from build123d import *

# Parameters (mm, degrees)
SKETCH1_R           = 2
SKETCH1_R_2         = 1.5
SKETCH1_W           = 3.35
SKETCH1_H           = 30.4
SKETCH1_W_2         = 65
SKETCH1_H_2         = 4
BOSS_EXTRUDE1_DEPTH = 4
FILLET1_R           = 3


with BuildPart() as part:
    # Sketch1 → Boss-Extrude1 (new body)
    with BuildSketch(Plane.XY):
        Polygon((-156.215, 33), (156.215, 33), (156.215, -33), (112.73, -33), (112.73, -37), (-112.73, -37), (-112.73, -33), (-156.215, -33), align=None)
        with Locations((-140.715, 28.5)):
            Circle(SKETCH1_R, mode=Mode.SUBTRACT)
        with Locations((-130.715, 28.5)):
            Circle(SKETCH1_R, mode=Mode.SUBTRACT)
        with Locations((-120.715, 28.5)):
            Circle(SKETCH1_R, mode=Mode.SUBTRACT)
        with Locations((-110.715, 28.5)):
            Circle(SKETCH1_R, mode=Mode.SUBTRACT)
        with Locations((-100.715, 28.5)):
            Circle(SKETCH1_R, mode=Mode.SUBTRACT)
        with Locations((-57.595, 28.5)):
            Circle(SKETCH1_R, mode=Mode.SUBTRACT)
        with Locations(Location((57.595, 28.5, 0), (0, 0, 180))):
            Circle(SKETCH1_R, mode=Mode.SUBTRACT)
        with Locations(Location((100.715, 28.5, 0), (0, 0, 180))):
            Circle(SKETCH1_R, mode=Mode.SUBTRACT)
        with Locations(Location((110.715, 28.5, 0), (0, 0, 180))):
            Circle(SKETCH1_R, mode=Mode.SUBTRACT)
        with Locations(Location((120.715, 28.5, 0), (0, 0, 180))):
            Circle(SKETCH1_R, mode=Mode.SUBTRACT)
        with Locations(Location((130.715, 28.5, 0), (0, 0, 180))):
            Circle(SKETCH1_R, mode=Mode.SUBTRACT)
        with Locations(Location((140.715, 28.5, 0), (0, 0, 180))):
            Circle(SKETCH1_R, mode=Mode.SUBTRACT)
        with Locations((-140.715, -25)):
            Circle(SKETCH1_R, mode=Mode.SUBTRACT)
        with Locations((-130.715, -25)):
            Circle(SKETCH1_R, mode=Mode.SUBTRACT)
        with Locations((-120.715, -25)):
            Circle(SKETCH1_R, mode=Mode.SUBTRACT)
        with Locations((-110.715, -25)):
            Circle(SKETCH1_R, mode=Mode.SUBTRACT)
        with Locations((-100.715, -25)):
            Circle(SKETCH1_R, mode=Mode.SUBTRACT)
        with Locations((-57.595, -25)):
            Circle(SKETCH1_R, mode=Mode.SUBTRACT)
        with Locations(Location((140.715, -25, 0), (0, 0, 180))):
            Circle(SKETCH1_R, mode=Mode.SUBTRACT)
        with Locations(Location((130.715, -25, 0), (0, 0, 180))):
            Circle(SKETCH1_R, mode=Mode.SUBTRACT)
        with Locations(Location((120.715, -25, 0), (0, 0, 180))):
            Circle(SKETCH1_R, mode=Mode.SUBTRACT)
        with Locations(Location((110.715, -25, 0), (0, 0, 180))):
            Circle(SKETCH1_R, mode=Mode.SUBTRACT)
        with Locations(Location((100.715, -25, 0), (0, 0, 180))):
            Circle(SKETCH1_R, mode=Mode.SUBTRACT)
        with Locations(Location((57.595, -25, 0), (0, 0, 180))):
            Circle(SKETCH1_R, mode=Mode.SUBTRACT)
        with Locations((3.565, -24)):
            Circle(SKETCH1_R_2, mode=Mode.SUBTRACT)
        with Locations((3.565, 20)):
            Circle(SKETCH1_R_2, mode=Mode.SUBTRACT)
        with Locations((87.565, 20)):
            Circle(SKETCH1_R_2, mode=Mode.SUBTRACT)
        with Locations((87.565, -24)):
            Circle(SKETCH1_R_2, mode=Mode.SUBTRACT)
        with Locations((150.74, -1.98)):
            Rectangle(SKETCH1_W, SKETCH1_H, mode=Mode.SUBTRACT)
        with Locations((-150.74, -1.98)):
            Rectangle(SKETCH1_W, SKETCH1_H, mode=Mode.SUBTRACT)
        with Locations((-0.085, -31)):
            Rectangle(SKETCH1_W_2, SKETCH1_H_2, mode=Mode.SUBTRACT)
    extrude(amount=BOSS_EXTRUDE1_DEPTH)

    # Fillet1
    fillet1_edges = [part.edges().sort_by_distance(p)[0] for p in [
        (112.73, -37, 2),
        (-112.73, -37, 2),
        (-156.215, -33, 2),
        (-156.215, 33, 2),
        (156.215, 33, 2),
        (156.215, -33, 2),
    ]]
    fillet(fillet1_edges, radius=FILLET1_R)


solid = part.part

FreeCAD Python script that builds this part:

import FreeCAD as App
import Part
import Sketcher


def edges_at(feature, points):
    """Names of the edges that pass closest to the given points."""
    edges = feature.Shape.Edges
    near = lambda p: min(range(len(edges)), key=lambda i: edges[i].distToShape(Part.Vertex(*p))[0])
    return sorted({f"Edge{near(p) + 1}" for p in points})

doc = App.newDocument("Part")
body = doc.addObject("PartDesign::Body", "Body")

# Sketch on XY plane
sketch1 = body.newObject("Sketcher::SketchObject", "Sketch")
sketch1.AttachmentSupport = (doc.getObject("XY_Plane"), [""])
sketch1.MapMode = "FlatFace"
sketch1.addGeometry([
    Part.LineSegment(App.Vector(156.2, 33, 0), App.Vector(-156.2, 33, 0)),  # 0
    Part.LineSegment(App.Vector(-156.2, 33, 0), App.Vector(-156.2, -33, 0)),  # 1
    Part.LineSegment(App.Vector(-156.2, -33, 0), App.Vector(-112.7, -33, 0)),  # 2
    Part.LineSegment(App.Vector(-112.7, -33, 0), App.Vector(-112.7, -37, 0)),  # 3
    Part.LineSegment(App.Vector(-112.7, -37, 0), App.Vector(112.7, -37, 0)),  # 4
    Part.LineSegment(App.Vector(112.7, -37, 0), App.Vector(112.7, -33, 0)),  # 5
    Part.LineSegment(App.Vector(112.7, -33, 0), App.Vector(156.2, -33, 0)),  # 6
    Part.LineSegment(App.Vector(156.2, -33, 0), App.Vector(156.2, 33, 0)),  # 7
    Part.Circle(App.Vector(140.7, -25, 0), App.Vector(0, 0, 1), 2),  # 8
    Part.Circle(App.Vector(130.7, -25, 0), App.Vector(0, 0, 1), 2),  # 9
    Part.Circle(App.Vector(120.7, -25, 0), App.Vector(0, 0, 1), 2),  # 10
    Part.Circle(App.Vector(110.7, -25, 0), App.Vector(0, 0, 1), 2),  # 11
    Part.Circle(App.Vector(100.7, -25, 0), App.Vector(0, 0, 1), 2),  # 12
    Part.Circle(App.Vector(87.6, -24, 0), App.Vector(0, 0, 1), 1.5),  # 13
    Part.Circle(App.Vector(57.6, -25, 0), App.Vector(0, 0, 1), 2),  # 14
    Part.Circle(App.Vector(3.6, -24, 0), App.Vector(0, 0, 1), 1.5),  # 15
    Part.LineSegment(App.Vector(149.1, -17.2, 0), App.Vector(149.1, 13.2, 0)),  # 16
    Part.LineSegment(App.Vector(149.1, 13.2, 0), App.Vector(152.4, 13.2, 0)),  # 17
    Part.LineSegment(App.Vector(152.4, 13.2, 0), App.Vector(152.4, -17.2, 0)),  # 18
    Part.LineSegment(App.Vector(152.4, -17.2, 0), App.Vector(149.1, -17.2, 0)),  # 19
    Part.LineSegment(App.Vector(-32.6, -33, 0), App.Vector(-32.6, -29, 0)),  # 20
    Part.LineSegment(App.Vector(-32.6, -29, 0), App.Vector(32.4, -29, 0)),  # 21
    Part.LineSegment(App.Vector(32.4, -29, 0), App.Vector(32.4, -33, 0)),  # 22
    Part.LineSegment(App.Vector(32.4, -33, 0), App.Vector(-32.6, -33, 0)),  # 23
    Part.Circle(App.Vector(-57.6, -25, 0), App.Vector(0, 0, 1), 2),  # 24
    Part.Circle(App.Vector(-100.7, -25, 0), App.Vector(0, 0, 1), 2),  # 25
    Part.Circle(App.Vector(-110.7, -25, 0), App.Vector(0, 0, 1), 2),  # 26
    Part.Circle(App.Vector(-120.7, -25, 0), App.Vector(0, 0, 1), 2),  # 27
    Part.Circle(App.Vector(-130.7, -25, 0), App.Vector(0, 0, 1), 2),  # 28
    Part.Circle(App.Vector(-140.7, -25, 0), App.Vector(0, 0, 1), 2),  # 29
    Part.LineSegment(App.Vector(-152.4, -17.2, 0), App.Vector(-152.4, 13.2, 0)),  # 30
    Part.LineSegment(App.Vector(-152.4, 13.2, 0), App.Vector(-149.1, 13.2, 0)),  # 31
    Part.LineSegment(App.Vector(-149.1, 13.2, 0), App.Vector(-149.1, -17.2, 0)),  # 32
    Part.LineSegment(App.Vector(-149.1, -17.2, 0), App.Vector(-152.4, -17.2, 0)),  # 33
    Part.Circle(App.Vector(87.6, 20, 0), App.Vector(0, 0, 1), 1.5),  # 34
    Part.Circle(App.Vector(140.7, 28.5, 0), App.Vector(0, 0, 1), 2),  # 35
    Part.Circle(App.Vector(130.7, 28.5, 0), App.Vector(0, 0, 1), 2),  # 36
    Part.Circle(App.Vector(120.7, 28.5, 0), App.Vector(0, 0, 1), 2),  # 37
    Part.Circle(App.Vector(110.7, 28.5, 0), App.Vector(0, 0, 1), 2),  # 38
    Part.Circle(App.Vector(100.7, 28.5, 0), App.Vector(0, 0, 1), 2),  # 39
    Part.Circle(App.Vector(3.6, 20, 0), App.Vector(0, 0, 1), 1.5),  # 40
    Part.Circle(App.Vector(57.6, 28.5, 0), App.Vector(0, 0, 1), 2),  # 41
    Part.Circle(App.Vector(-57.6, 28.5, 0), App.Vector(0, 0, 1), 2),  # 42
    Part.Circle(App.Vector(-100.7, 28.5, 0), App.Vector(0, 0, 1), 2),  # 43
    Part.Circle(App.Vector(-110.7, 28.5, 0), App.Vector(0, 0, 1), 2),  # 44
    Part.Circle(App.Vector(-120.7, 28.5, 0), App.Vector(0, 0, 1), 2),  # 45
    Part.Circle(App.Vector(-130.7, 28.5, 0), App.Vector(0, 0, 1), 2),  # 46
    Part.Circle(App.Vector(-140.7, 28.5, 0), App.Vector(0, 0, 1), 2),  # 47
], False)
sketch1.addConstraint([
    Sketcher.Constraint("Coincident", 0, 2, 1, 1),
    Sketcher.Constraint("Coincident", 1, 2, 2, 1),
    Sketcher.Constraint("Coincident", 2, 2, 3, 1),
    Sketcher.Constraint("Coincident", 3, 2, 4, 1),
    Sketcher.Constraint("Coincident", 4, 2, 5, 1),
    Sketcher.Constraint("Coincident", 5, 2, 6, 1),
    Sketcher.Constraint("Coincident", 6, 2, 7, 1),
    Sketcher.Constraint("Coincident", 7, 2, 0, 1),
    Sketcher.Constraint("Coincident", 16, 2, 17, 1),
    Sketcher.Constraint("Coincident", 17, 2, 18, 1),
    Sketcher.Constraint("Coincident", 18, 2, 19, 1),
    Sketcher.Constraint("Coincident", 19, 2, 16, 1),
    Sketcher.Constraint("Coincident", 20, 2, 21, 1),
    Sketcher.Constraint("Coincident", 21, 2, 22, 1),
    Sketcher.Constraint("Coincident", 22, 2, 23, 1),
    Sketcher.Constraint("Coincident", 23, 2, 20, 1),
    Sketcher.Constraint("Coincident", 30, 2, 31, 1),
    Sketcher.Constraint("Coincident", 31, 2, 32, 1),
    Sketcher.Constraint("Coincident", 32, 2, 33, 1),
    Sketcher.Constraint("Coincident", 33, 2, 30, 1),
    Sketcher.Constraint("Horizontal", 0),
    Sketcher.Constraint("Vertical", 1),
    Sketcher.Constraint("Horizontal", 2),
    Sketcher.Constraint("Vertical", 3),
    Sketcher.Constraint("Horizontal", 4),
    Sketcher.Constraint("Vertical", 5),
    Sketcher.Constraint("Horizontal", 6),
    Sketcher.Constraint("Vertical", 7),
    Sketcher.Constraint("Vertical", 16),
    Sketcher.Constraint("Horizontal", 17),
    Sketcher.Constraint("Vertical", 18),
    Sketcher.Constraint("Horizontal", 19),
    Sketcher.Constraint("Vertical", 20),
    Sketcher.Constraint("Horizontal", 21),
    Sketcher.Constraint("Vertical", 22),
    Sketcher.Constraint("Horizontal", 23),
    Sketcher.Constraint("Vertical", 30),
    Sketcher.Constraint("Horizontal", 31),
    Sketcher.Constraint("Vertical", 32),
    Sketcher.Constraint("Horizontal", 33),
    Sketcher.Constraint("Equal", 8, 9),
    Sketcher.Constraint("Equal", 9, 10),
    Sketcher.Constraint("Equal", 10, 11),
    Sketcher.Constraint("Equal", 11, 12),
    Sketcher.Constraint("Equal", 12, 14),
    Sketcher.Constraint("Equal", 13, 15),
    Sketcher.Constraint("Equal", 14, 24),
    Sketcher.Constraint("Equal", 24, 25),
    Sketcher.Constraint("Equal", 25, 26),
    Sketcher.Constraint("Equal", 26, 27),
    Sketcher.Constraint("Equal", 27, 28),
    Sketcher.Constraint("Equal", 28, 29),
    Sketcher.Constraint("Equal", 15, 34),
    Sketcher.Constraint("Equal", 29, 35),
    Sketcher.Constraint("Equal", 35, 36),
    Sketcher.Constraint("Equal", 36, 37),
    Sketcher.Constraint("Equal", 37, 38),
    Sketcher.Constraint("Equal", 38, 39),
    Sketcher.Constraint("Equal", 34, 40),
    Sketcher.Constraint("Equal", 39, 41),
    Sketcher.Constraint("Equal", 41, 42),
    Sketcher.Constraint("Equal", 42, 43),
    Sketcher.Constraint("Equal", 43, 44),
    Sketcher.Constraint("Equal", 44, 45),
    Sketcher.Constraint("Equal", 45, 46),
    Sketcher.Constraint("Equal", 46, 47),
    Sketcher.Constraint("Symmetric", 0, 2, 6, 2, -1, 1),
    Sketcher.Constraint("Symmetric", 14, 3, 24, 3, -2),
    Sketcher.Constraint("Symmetric", 12, 3, 25, 3, -2),
    Sketcher.Constraint("Symmetric", 11, 3, 26, 3, -2),
    Sketcher.Constraint("Symmetric", 10, 3, 27, 3, -2),
    Sketcher.Constraint("Symmetric", 9, 3, 28, 3, -2),
    Sketcher.Constraint("Symmetric", 8, 3, 29, 3, -2),
    Sketcher.Constraint("Symmetric", 41, 3, 42, 3, -2),
    Sketcher.Constraint("Symmetric", 39, 3, 43, 3, -2),
    Sketcher.Constraint("Symmetric", 38, 3, 44, 3, -2),
    Sketcher.Constraint("Symmetric", 37, 3, 45, 3, -2),
    Sketcher.Constraint("Symmetric", 36, 3, 46, 3, -2),
    Sketcher.Constraint("Symmetric", 35, 3, 47, 3, -2),
    Sketcher.Constraint("Symmetric", 2, 2, 5, 2, -2),
    Sketcher.Constraint("Symmetric", 17, 2, 30, 2, -2),
    Sketcher.Constraint("Symmetric", 19, 2, 32, 2, -2),
    Sketcher.Constraint("Horizontal", 8, 3, 9, 3),
    Sketcher.Constraint("Horizontal", 9, 3, 10, 3),
    Sketcher.Constraint("Horizontal", 10, 3, 11, 3),
    Sketcher.Constraint("Horizontal", 11, 3, 12, 3),
    Sketcher.Constraint("Horizontal", 12, 3, 14, 3),
    Sketcher.Constraint("Horizontal", 13, 3, 15, 3),
    Sketcher.Constraint("Horizontal", 35, 3, 36, 3),
    Sketcher.Constraint("Horizontal", 36, 3, 37, 3),
    Sketcher.Constraint("Horizontal", 37, 3, 38, 3),
    Sketcher.Constraint("Horizontal", 38, 3, 39, 3),
    Sketcher.Constraint("Horizontal", 34, 3, 40, 3),
    Sketcher.Constraint("Horizontal", 39, 3, 41, 3),
    Sketcher.Constraint("Horizontal", 6, 2, 22, 2),
    Sketcher.Constraint("Vertical", 13, 3, 34, 3),
    Sketcher.Constraint("Vertical", 8, 3, 35, 3),
    Sketcher.Constraint("Vertical", 9, 3, 36, 3),
    Sketcher.Constraint("Vertical", 10, 3, 37, 3),
    Sketcher.Constraint("Vertical", 11, 3, 38, 3),
    Sketcher.Constraint("Vertical", 12, 3, 39, 3),
    Sketcher.Constraint("Vertical", 15, 3, 40, 3),
    Sketcher.Constraint("Vertical", 14, 3, 41, 3),
    Sketcher.Constraint("Equal", 5, 20),
    Sketcher.Constraint("Diameter", 8, 4.0),
    Sketcher.Constraint("Diameter", 13, 3.0),
    Sketcher.Constraint("DistanceX", 21, 1, 21, 2, 65.0),
    Sketcher.Constraint("DistanceY", 1, 2, 1, 1, 66.0),
    Sketcher.Constraint("DistanceY", 3, 2, 3, 1, 4.0),
    Sketcher.Constraint("DistanceY", 16, 1, 16, 2, 30.4),
    Sketcher.Constraint("DistanceY", 8, 3, -1, 1, 25.0),
    Sketcher.Constraint("DistanceY", 13, 3, -1, 1, 24.0),
    Sketcher.Constraint("DistanceY", -1, 1, 34, 3, 20.0),
    Sketcher.Constraint("DistanceX", 9, 3, 8, 3, 10.0),
    Sketcher.Constraint("DistanceX", 10, 3, 9, 3, 10.0),
    Sketcher.Constraint("DistanceX", 11, 3, 10, 3, 10.0),
    Sketcher.Constraint("DistanceX", 12, 3, 11, 3, 10.0),
    Sketcher.Constraint("DistanceX", 15, 3, 13, 3, 84.0),
    Sketcher.Constraint("DistanceX", 0, 2, 0, 1, 312.43),
    Sketcher.Constraint("DistanceX", 4, 1, 4, 2, 225.46),
    Sketcher.Constraint("DistanceX", 17, 1, 17, 2, 3.35),
    Sketcher.Constraint("DistanceY", -1, 1, 35, 3, 28.5),
    Sketcher.Constraint("DistanceX", 0, 2, 47, 3, 15.5),
    Sketcher.Constraint("DistanceX", 35, 3, 17, 2, 11.7),
    Sketcher.Constraint("DistanceY", -1, 1, 16, 2, 13.22),
    Sketcher.Constraint("DistanceX", 13, 3, 12, 3, 13.15),
    Sketcher.Constraint("DistanceX", 14, 3, 13, 3, 29.97),
    Sketcher.Constraint("DistanceX", 24, 3, 20, 2, 25.01),
])
pad1 = body.newObject("PartDesign::Pad", "Pad")
pad1.Profile = sketch1
pad1.Length = 4
doc.recompute()

fillet = body.newObject("PartDesign::Fillet", "Fillet")
fillet.Base = (pad1, edges_at(pad1, [
    (112.73, -37, 2),
    (-112.73, -37, 2),
    (-156.215, -33, 2),
    (-156.215, 33, 2),
    (156.215, 33, 2),
    (156.215, -33, 2),
]))
fillet.Radius = 3

doc.recompute()
